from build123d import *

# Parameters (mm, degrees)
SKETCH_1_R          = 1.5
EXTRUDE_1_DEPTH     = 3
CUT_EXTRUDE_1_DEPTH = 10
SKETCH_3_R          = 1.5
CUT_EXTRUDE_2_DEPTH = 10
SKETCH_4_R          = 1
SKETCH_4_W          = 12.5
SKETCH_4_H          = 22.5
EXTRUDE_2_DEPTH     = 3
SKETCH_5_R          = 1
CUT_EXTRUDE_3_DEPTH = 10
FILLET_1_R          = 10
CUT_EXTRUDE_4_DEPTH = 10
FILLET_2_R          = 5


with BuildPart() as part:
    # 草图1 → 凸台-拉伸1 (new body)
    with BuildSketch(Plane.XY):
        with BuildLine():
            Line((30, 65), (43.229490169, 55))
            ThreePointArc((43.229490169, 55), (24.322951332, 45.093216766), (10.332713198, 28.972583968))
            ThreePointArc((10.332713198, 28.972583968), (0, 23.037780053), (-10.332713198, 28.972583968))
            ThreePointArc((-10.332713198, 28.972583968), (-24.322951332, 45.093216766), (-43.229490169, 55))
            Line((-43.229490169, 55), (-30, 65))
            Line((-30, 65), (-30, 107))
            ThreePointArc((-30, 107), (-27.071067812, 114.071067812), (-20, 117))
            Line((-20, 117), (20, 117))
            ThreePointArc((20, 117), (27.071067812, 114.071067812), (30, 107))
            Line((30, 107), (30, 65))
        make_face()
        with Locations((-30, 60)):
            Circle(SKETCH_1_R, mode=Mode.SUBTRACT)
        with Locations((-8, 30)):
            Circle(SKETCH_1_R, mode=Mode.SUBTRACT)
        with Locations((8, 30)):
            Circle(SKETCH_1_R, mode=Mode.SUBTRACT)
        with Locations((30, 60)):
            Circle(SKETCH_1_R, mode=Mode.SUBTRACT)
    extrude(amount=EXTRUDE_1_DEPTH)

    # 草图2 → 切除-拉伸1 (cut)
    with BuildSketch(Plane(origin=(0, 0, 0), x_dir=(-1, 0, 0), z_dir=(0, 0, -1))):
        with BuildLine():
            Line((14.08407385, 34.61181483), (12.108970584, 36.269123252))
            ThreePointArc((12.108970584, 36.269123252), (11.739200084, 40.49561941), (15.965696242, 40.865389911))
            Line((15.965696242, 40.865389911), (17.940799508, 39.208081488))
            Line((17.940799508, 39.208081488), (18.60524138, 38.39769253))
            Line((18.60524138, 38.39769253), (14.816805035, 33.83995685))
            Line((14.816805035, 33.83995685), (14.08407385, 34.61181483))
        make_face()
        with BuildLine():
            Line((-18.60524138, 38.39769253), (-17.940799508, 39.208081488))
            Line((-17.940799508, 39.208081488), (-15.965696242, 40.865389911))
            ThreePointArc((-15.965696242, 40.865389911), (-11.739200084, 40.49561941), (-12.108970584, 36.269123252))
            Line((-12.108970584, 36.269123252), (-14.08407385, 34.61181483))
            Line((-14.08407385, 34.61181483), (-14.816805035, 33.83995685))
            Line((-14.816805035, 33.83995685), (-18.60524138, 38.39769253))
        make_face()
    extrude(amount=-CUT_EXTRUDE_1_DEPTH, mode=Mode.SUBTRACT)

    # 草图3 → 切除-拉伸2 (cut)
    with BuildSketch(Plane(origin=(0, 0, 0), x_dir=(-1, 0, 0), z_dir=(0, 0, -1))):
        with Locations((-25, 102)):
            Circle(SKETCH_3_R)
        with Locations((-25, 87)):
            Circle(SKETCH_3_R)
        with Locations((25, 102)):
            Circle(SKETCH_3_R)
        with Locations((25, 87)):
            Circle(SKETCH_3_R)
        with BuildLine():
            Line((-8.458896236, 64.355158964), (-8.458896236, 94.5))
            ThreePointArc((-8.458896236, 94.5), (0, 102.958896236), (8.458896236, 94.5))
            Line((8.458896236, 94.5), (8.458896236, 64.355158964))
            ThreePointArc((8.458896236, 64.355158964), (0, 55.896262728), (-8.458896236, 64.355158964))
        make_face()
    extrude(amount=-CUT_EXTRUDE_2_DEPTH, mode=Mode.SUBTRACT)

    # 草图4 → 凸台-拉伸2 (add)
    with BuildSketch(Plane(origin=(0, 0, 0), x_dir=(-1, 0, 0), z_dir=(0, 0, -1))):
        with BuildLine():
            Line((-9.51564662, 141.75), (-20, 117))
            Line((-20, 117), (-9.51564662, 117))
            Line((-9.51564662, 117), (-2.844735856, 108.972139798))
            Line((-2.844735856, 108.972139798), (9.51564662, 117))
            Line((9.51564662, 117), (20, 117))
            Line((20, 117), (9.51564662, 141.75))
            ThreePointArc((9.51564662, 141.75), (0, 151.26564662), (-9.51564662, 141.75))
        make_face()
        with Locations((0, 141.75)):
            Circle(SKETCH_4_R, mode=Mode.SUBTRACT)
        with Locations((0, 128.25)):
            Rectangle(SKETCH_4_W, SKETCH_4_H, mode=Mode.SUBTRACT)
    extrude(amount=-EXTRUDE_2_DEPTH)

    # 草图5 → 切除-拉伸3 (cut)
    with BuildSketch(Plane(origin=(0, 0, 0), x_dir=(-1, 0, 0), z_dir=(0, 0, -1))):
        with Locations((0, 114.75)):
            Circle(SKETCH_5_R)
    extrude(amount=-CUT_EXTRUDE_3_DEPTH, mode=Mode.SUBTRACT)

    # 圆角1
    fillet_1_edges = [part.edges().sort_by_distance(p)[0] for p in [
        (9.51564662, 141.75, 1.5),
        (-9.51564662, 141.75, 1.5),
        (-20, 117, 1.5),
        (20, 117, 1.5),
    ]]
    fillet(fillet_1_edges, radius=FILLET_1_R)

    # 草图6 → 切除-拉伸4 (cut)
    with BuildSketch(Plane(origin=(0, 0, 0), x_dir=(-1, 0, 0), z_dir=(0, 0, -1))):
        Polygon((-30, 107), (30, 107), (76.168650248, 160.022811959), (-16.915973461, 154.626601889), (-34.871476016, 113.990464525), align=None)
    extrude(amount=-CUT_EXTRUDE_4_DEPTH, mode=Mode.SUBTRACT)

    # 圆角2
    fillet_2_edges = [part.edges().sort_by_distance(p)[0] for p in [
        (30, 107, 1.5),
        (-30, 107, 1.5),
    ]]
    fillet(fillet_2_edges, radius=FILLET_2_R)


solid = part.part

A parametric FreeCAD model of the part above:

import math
import FreeCAD as App
import Part
import Sketcher

V = App.Vector
Q = App.Units.Quantity


def edges_at(feature, points):
    """Names of the edges that pass closest to the given points."""
    edges = feature.Shape.Edges
    near = lambda p: min(range(len(edges)), key=lambda i: edges[i].distToShape(Part.Vertex(*p))[0])
    return sorted({f"Edge{near(p) + 1}" for p in points})

doc = App.newDocument("Part")
params = doc.addObject("Spreadsheet::Sheet", "Params")
for row, (alias, value) in enumerate([
    ("sketch1_diameter", "3 mm"),
    ("sketch1_radius", "10 mm"),
    ("sketch1_radius2", "57.5 mm"),
    ("sketch1_width", "40 mm"),
    ("sketch1_height", "42 mm"),
    ("pad1_length", "3 mm"),
    ("sketch2_radius", "3 mm"),
    ("pocket1_length", "10 mm"),
    ("sketch3_diameter", "3 mm"),
    ("pocket2_length", "10 mm"),
    ("sketch4_diameter", "2 mm"),
    ("sketch4_width", "12.5 mm"),
    ("sketch4_height", "22.5 mm"),
    ("pad2_length", "3 mm"),
    ("sketch5_diameter", "2 mm"),
    ("pocket3_length", "10 mm"),
    ("fillet_radius", "10 mm"),
    ("sketch6_width", "60 mm"),
    ("pocket4_length", "10 mm"),
    ("fillet2_radius", "5 mm"),
], start=1):
    params.set(f"A{row}", alias)
    params.set(f"B{row}", "=" + value)
    params.setAlias(f"B{row}", alias)

body = doc.addObject("PartDesign::Body", "Body")

# Sketch on XY plane
sketch1 = body.newObject("Sketcher::SketchObject", "Sketch")
sketch1.AttachmentSupport = (doc.getObject("XY_Plane"), [""])
sketch1.MapMode = "FlatFace"
sketch1.addGeometry(Part.LineSegment(V(43.2, 55, 0), V(30, 65, 0)), False)
sketch1.addGeometry(Part.LineSegment(V(30, 65, 0), V(30, 107, 0)), False)
sketch1.addGeometry(Part.ArcOfCircle(Part.Circle(V(20, 107, 0), V(0, 0, 1), 10), math.radians(0), math.radians(90)), False)
sketch1.addGeometry(Part.LineSegment(V(20, 117, 0), V(-20, 117, 0)), False)
sketch1.addGeometry(Part.ArcOfCircle(Part.Circle(V(-20, 107, 0), V(0, 0, 1), 10), math.radians(90), math.radians(180)), False)
sketch1.addGeometry(Part.LineSegment(V(-30, 107, 0), V(-30, 65, 0)), False)
sketch1.addGeometry(Part.LineSegment(V(-30, 65, 0), V(-43.2, 55, 0)), False)
sketch1.addGeometry(Part.ArcOfCircle(Part.Circle(V(-60, 0, 0), V(0, 0, 1), 57.5), math.radians(30), math.radians(73)), False)
sketch1.addGeometry(Part.ArcOfCircle(Part.Circle(V(0, 35, 0), V(0, 0, 1), 12), math.radians(-150), math.radians(-30)), False)
sketch1.addGeometry(Part.ArcOfCircle(Part.Circle(V(60, 0, 0), V(0, 0, 1), 57.5), math.radians(107), math.radians(150)), False)
sketch1.addGeometry(Part.Circle(V(8, 30, 0), V(0, 0, 1), 1.5), False)
sketch1.addGeometry(Part.Circle(V(-8, 30, 0), V(0, 0, 1), 1.5), False)
sketch1.addGeometry(Part.Circle(V(30, 60, 0), V(0, 0, 1), 1.5), False)
sketch1.addGeometry(Part.Circle(V(-30, 60, 0), V(0, 0, 1), 1.5), False)
sketch1.addConstraint(Sketcher.Constraint("Coincident", 0, 2, 1, 1))
sketch1.addConstraint(Sketcher.Constraint("Tangent", 1, 2, 2, 1))
sketch1.addConstraint(Sketcher.Constraint("Tangent", 2, 2, 3, 1))
sketch1.addConstraint(Sketcher.Constraint("Tangent", 3, 2, 4, 1))
sketch1.addConstraint(Sketcher.Constraint("Tangent", 4, 2, 5, 1))
sketch1.addConstraint(Sketcher.Constraint("Coincident", 5, 2, 6, 1))
sketch1.addConstraint(Sketcher.Constraint("Coincident", 6, 2, 7, 2))
sketch1.addConstraint(Sketcher.Constraint("Tangent", 7, 1, 8, 1))
sketch1.addConstraint(Sketcher.Constraint("Tangent", 8, 2, 9, 2))
sketch1.addConstraint(Sketcher.Constraint("Coincident", 9, 1, 0, 1))
sketch1.addConstraint(Sketcher.Constraint("Vertical", 1))
sketch1.addConstraint(Sketcher.Constraint("Horizontal", 3))
sketch1.addConstraint(Sketcher.Constraint("Vertical", 5))
sketch1.addConstraint(Sketcher.Constraint("Equal", 2, 4))
sketch1.addConstraint(Sketcher.Constraint("Equal", 7, 9))
sketch1.addConstraint(Sketcher.Constraint("Equal", 10, 11))
sketch1.addConstraint(Sketcher.Constraint("Equal", 11, 12))
sketch1.addConstraint(Sketcher.Constraint("Equal", 12, 13))
sketch1.addConstraint(Sketcher.Constraint("Symmetric", 7, 3, 9, 3, -1, 1))
sketch1.addConstraint(Sketcher.Constraint("Symmetric", 10, 3, 11, 3, -2))
sketch1.addConstraint(Sketcher.Constraint("Symmetric", 12, 3, 13, 3, -2))
sketch1.addConstraint(Sketcher.Constraint("Symmetric", 0, 2, 5, 2, -2))
sketch1.addConstraint(Sketcher.Constraint("Symmetric", 6, 2, 9, 1, -2))
sketch1.addConstraint(Sketcher.Constraint("Vertical", 12, 3, 0, 2))
sketch1.addConstraint(Sketcher.Constraint("Diameter", 10, Q("3 mm")))
sketch1.addConstraint(Sketcher.Constraint("Radius", 2, Q("10 mm")))
sketch1.addConstraint(Sketcher.Constraint("Radius", 7, Q("57.5 mm")))
sketch1.addConstraint(Sketcher.Constraint("DistanceX", 3, 2, 3, 1, Q("40 mm")))
sketch1.addConstraint(Sketcher.Constraint("DistanceY", 1, 1, 1, 2, Q("42 mm")))
sketch1.addConstraint(Sketcher.Constraint("DistanceY", -1, 1, 2, 3, Q("107 mm")))
sketch1.addConstraint(Sketcher.Constraint("DistanceX", 7, 3, -1, 1, Q("60 mm")))
sketch1.addConstraint(Sketcher.Constraint("DistanceY", -1, 1, 8, 3, Q("35 mm")))
sketch1.addConstraint(Sketcher.Constraint("DistanceX", -1, 1, 10, 3, Q("8 mm")))
sketch1.addConstraint(Sketcher.Constraint("DistanceY", -1, 1, 10, 3, Q("30 mm")))
sketch1.addConstraint(Sketcher.Constraint("DistanceY", -1, 1, 12, 3, Q("60 mm")))
sketch1.addConstraint(Sketcher.Constraint("DistanceY", -1, 1, 6, 2, Q("55 mm")))
sketch1.setExpression("Constraints[24]", "Params.sketch1_diameter")
sketch1.setExpression("Constraints[25]", "Params.sketch1_radius")
sketch1.setExpression("Constraints[26]", "Params.sketch1_radius2")
sketch1.setExpression("Constraints[27]", "Params.sketch1_width")
sketch1.setExpression("Constraints[28]", "Params.sketch1_height")
pad1 = body.newObject("PartDesign::Pad", "Pad")
pad1.Profile = sketch1
pad1.setExpression("Length", "Params.pad1_length")

# Sketch on XY plane
sketch2 = body.newObject("Sketcher::SketchObject", "Sketch001")
sketch2.AttachmentSupport = (doc.getObject("XY_Plane"), [""])
sketch2.MapMode = "FlatFace"
sketch2.addGeometry(Part.LineSegment(V(-12.1, 36.3, 0), V(-14.1, 34.6, 0)), False)
sketch2.addGeometry(Part.LineSegment(V(-14.1, 34.6, 0), V(-14.8, 33.8, 0)), False)
sketch2.addGeometry(Part.LineSegment(V(-14.8, 33.8, 0), V(-18.6, 38.4, 0)), False)
sketch2.addGeometry(Part.LineSegment(V(-18.6, 38.4, 0), V(-17.9, 39.2, 0)), False)
sketch2.addGeometry(Part.LineSegment(V(-17.9, 39.2, 0), V(-16, 40.9, 0)), False)
sketch2.addGeometry(Part.ArcOfCircle(Part.Circle(V(-14, 38.6, 0), V(0, 0, 1), 3), math.radians(-50), math.radians(130)), False)
sketch2.addGeometry(Part.LineSegment(V(17.9, 39.2, 0), V(18.6, 38.4, 0)), False)
sketch2.addGeometry(Part.LineSegment(V(18.6, 38.4, 0), V(14.8, 33.8, 0)), False)
sketch2.addGeometry(Part.LineSegment(V(14.8, 33.8, 0), V(14.1, 34.6, 0)), False)
sketch2.addGeometry(Part.LineSegment(V(14.1, 34.6, 0), V(12.1, 36.3, 0)), False)
sketch2.addGeometry(Part.ArcOfCircle(Part.Circle(V(14, 38.6, 0), V(0, 0, 1), 3), math.radians(50), math.radians(230)), False)
sketch2.addGeometry(Part.LineSegment(V(16, 40.9, 0), V(17.9, 39.2, 0)), False)
sketch2.addConstraint(Sketcher.Constraint("Coincident", 0, 2, 1, 1))
sketch2.addConstraint(Sketcher.Constraint("Coincident", 1, 2, 2, 1))
sketch2.addConstraint(Sketcher.Constraint("Coincident", 2, 2, 3, 1))
sketch2.addConstraint(Sketcher.Constraint("Coincident", 3, 2, 4, 1))
sketch2.addConstraint(Sketcher.Constraint("Tangent", 4, 2, 5, 2))
sketch2.addConstraint(Sketcher.Constraint("Tangent", 5, 1, 0, 1))
sketch2.addConstraint(Sketcher.Constraint("Coincident", 6, 2, 7, 1))
sketch2.addConstraint(Sketcher.Constraint("Coincident", 7, 2, 8, 1))
sketch2.addConstraint(Sketcher.Constraint("Coincident", 8, 2, 9, 1))
sketch2.addConstraint(Sketcher.Constraint("Tangent", 9, 2, 10, 2))
sketch2.addConstraint(Sketcher.Constraint("Tangent", 10, 1, 11, 1))
sketch2.addConstraint(Sketcher.Constraint("Coincident", 11, 2, 6, 1))
sketch2.addConstraint(Sketcher.Constraint("Equal", 5, 10))
sketch2.addConstraint(Sketcher.Constraint("Symmetric", 5, 3, 10, 3, -2))
sketch2.addConstraint(Sketcher.Constraint("Symmetric", 2, 2, 6, 2, -2))
sketch2.addConstraint(Sketcher.Constraint("Symmetric", 1, 2, 7, 2, -2))
sketch2.addConstraint(Sketcher.Constraint("Symmetric", 0, 2, 8, 2, -2))
sketch2.addConstraint(Sketcher.Constraint("Symmetric", 3, 2, 11, 2, -2))
sketch2.addConstraint(Sketcher.Constraint("Parallel", 0, 4))
sketch2.addConstraint(Sketcher.Constraint("Equal", 0, 4))
sketch2.addConstraint(Sketcher.Constraint("Radius", 5, Q("3 mm")))
sketch2.addConstraint(Sketcher.Constraint("Angle", 0, Q("-140 deg")))
sketch2.addConstraint(Sketcher.Constraint("DistanceX", 3, 2, -1, 1, Q("17.9408 mm")))
sketch2.addConstraint(Sketcher.Constraint("DistanceY", 1, 2, 5, 3, Q("4.7273 mm")))
sketch2.addConstraint(Sketcher.Constraint("DistanceX", 2, 2, -1, 1, Q("18.605241 mm")))
sketch2.addConstraint(Sketcher.Constraint("DistanceY", -1, 1, 3, 2, Q("39.208081 mm")))
sketch2.addConstraint(Sketcher.Constraint("DistanceY", -1, 1, 4, 2, Q("40.86539 mm")))
sketch2.addConstraint(Sketcher.Constraint("DistanceX", 1, 2, 0, 2, Q("0.732731 mm")))
sketch2.addConstraint(Sketcher.Constraint("DistanceY", 2, 2, 3, 2, Q("0.810389 mm")))
sketch2.setExpression("Constraints[20]", "Params.sketch2_radius")
pocket1 = body.newObject("PartDesign::Pocket", "Pocket")
pocket1.Profile = sketch2
pocket1.setExpression("Length", "Params.pocket1_length")
pocket1.Reversed = True

# Sketch on XY plane
sketch3 = body.newObject("Sketcher::SketchObject", "Sketch002")
sketch3.AttachmentSupport = (doc.getObject("XY_Plane"), [""])
sketch3.MapMode = "FlatFace"
sketch3.addGeometry(Part.Circle(V(25, 102, 0), V(0, 0, 1), 1.5), False)
sketch3.addGeometry(Part.Circle(V(25, 87, 0), V(0, 0, 1), 1.5), False)
sketch3.addGeometry(Part.Circle(V(-25, 102, 0), V(0, 0, 1), 1.5), False)
sketch3.addGeometry(Part.Circle(V(-25, 87, 0), V(0, 0, 1), 1.5), False)
sketch3.addGeometry(Part.LineSegment(V(8.5, 94.5, 0), V(8.5, 64.4, 0)), False)
sketch3.addGeometry(Part.ArcOfCircle(Part.Circle(V(0, 64.4, 0), V(0, 0, 1), 8.5), math.radians(180), math.radians(360)), False)
sketch3.addGeometry(Part.LineSegment(V(-8.5, 64.4, 0), V(-8.5, 94.5, 0)), False)
sketch3.addGeometry(Part.ArcOfCircle(Part.Circle(V(0, 94.5, 0), V(0, 0, 1), 8.5), math.radians(0), math.radians(180)), False)
sketch3.addConstraint(Sketcher.Constraint("Tangent", 4, 2, 5, 2))
sketch3.addConstraint(Sketcher.Constraint("Tangent", 5, 1, 6, 1))
sketch3.addConstraint(Sketcher.Constraint("Tangent", 6, 2, 7, 2))
sketch3.addConstraint(Sketcher.Constraint("Tangent", 7, 1, 4, 1))
sketch3.addConstraint(Sketcher.Constraint("Vertical", 4))
sketch3.addConstraint(Sketcher.Constraint("Vertical", 6))
sketch3.addConstraint(Sketcher.Constraint("Equal", 0, 1))
sketch3.addConstraint(Sketcher.Constraint("Equal", 1, 2))
sketch3.addConstraint(Sketcher.Constraint("Equal", 2, 3))
sketch3.addConstraint(Sketcher.Constraint("Symmetric", 0, 3, 2, 3, -2))
sketch3.addConstraint(Sketcher.Constraint("Symmetric", 1, 3, 3, 3, -2))
sketch3.addConstraint(Sketcher.Constraint("PointOnObject", 5, 3, -2))
sketch3.addConstraint(Sketcher.Constraint("Vertical", 0, 3, 1, 3))
sketch3.addConstraint(Sketcher.Constraint("Diameter", 0, Q("3 mm")))
sketch3.addConstraint(Sketcher.Constraint("DistanceX", -1, 1, 0, 3, Q("25 mm")))
sketch3.addConstraint(Sketcher.Constraint("DistanceY", -1, 1, 0, 3, Q("102 mm")))
sketch3.addConstraint(Sketcher.Constraint("DistanceY", -1, 1, 1, 3, Q("87 mm")))
sketch3.addConstraint(Sketcher.Constraint("DistanceY", -1, 1, 7, 3, Q("94.5 mm")))
sketch3.addConstraint(Sketcher.Constraint("Radius", 5, Q("8.458896 mm")))
sketch3.addConstraint(Sketcher.Constraint("DistanceY", 4, 2, 4, 1, Q("30.144841 mm")))
sketch3.setExpression("Constraints[13]", "Params.sketch3_diameter")
pocket2 = body.newObject("PartDesign::Pocket", "Pocket001")
pocket2.Profile = sketch3
pocket2.setExpression("Length", "Params.pocket2_length")
pocket2.Reversed = True

# Sketch on XY plane
sketch4 = body.newObject("Sketcher::SketchObject", "Sketch003")
sketch4.AttachmentSupport = (doc.getObject("XY_Plane"), [""])
sketch4.MapMode = "FlatFace"
sketch4.addGeometry(Part.LineSegment(V(9.5, 141.8, 0), V(20, 117, 0)), False)
sketch4.addGeometry(Part.LineSegment(V(20, 117, 0), V(9.5, 117, 0)), False)
sketch4.addGeometry(Part.LineSegment(V(9.5, 117, 0), V(2.8, 109, 0)), False)
sketch4.addGeometry(Part.LineSegment(V(2.8, 109, 0), V(-9.5, 117, 0)), False)
sketch4.addGeometry(Part.LineSegment(V(-9.5, 117, 0), V(-20, 117, 0)), False)
sketch4.addGeometry(Part.LineSegment(V(-20, 117, 0), V(-9.5, 141.8, 0)), False)
sketch4.addGeometry(Part.ArcOfCircle(Part.Circle(V(0, 141.8, 0), V(0, 0, 1), 9.5), math.radians(0), math.radians(180)), False)
sketch4.addGeometry(Part.LineSegment(V(-6.2, 117, 0), V(6.2, 117, 0)), False)
sketch4.addGeometry(Part.LineSegment(V(6.2, 117, 0), V(6.2, 139.5, 0)), False)
sketch4.addGeometry(Part.LineSegment(V(6.2, 139.5, 0), V(-6.2, 139.5, 0)), False)
sketch4.addGeometry(Part.LineSegment(V(-6.2, 139.5, 0), V(-6.2, 117, 0)), False)
sketch4.addGeometry(Part.Circle(V(0, 141.8, 0), V(0, 0, 1), 1), False)
sketch4.addConstraint(Sketcher.Constraint("Coincident", 0, 2, 1, 1))
sketch4.addConstraint(Sketcher.Constraint("Coincident", 1, 2, 2, 1))
sketch4.addConstraint(Sketcher.Constraint("Coincident", 2, 2, 3, 1))
sketch4.addConstraint(Sketcher.Constraint("Coincident", 3, 2, 4, 1))
sketch4.addConstraint(Sketcher.Constraint("Coincident", 4, 2, 5, 1))
sketch4.addConstraint(Sketcher.Constraint("Coincident", 5, 2, 6, 2))
sketch4.addConstraint(Sketcher.Constraint("Coincident", 6, 1, 0, 1))
sketch4.addConstraint(Sketcher.Constraint("Coincident", 7, 2, 8, 1))
sketch4.addConstraint(Sketcher.Constraint("Coincident", 8, 2, 9, 1))
sketch4.addConstraint(Sketcher.Constraint("Coincident", 9, 2, 10, 1))
sketch4.addConstraint(Sketcher.Constraint("Coincident", 10, 2, 7, 1))
sketch4.addConstraint(Sketcher.Constraint("Horizontal", 1))
sketch4.addConstraint(Sketcher.Constraint("Horizontal", 4))
sketch4.addConstraint(Sketcher.Constraint("Horizontal", 7))
sketch4.addConstraint(Sketcher.Constraint("Vertical", 8))
sketch4.addConstraint(Sketcher.Constraint("Horizontal", 9))
sketch4.addConstraint(Sketcher.Constraint("Vertical", 10))
sketch4.addConstraint(Sketcher.Constraint("Coincident", 11, 3, 6, 3))
sketch4.addConstraint(Sketcher.Constraint("Symmetric", 1, 2, 3, 2, -2))
sketch4.addConstraint(Sketcher.Constraint("Symmetric", 5, 2, 6, 1, -2))
sketch4.addConstraint(Sketcher.Constraint("Horizontal", 11, 3, 5, 2))
sketch4.addConstraint(Sketcher.Constraint("Horizontal", 4, 2, 7, 2))
sketch4.addConstraint(Sketcher.Constraint("Vertical", 3, 2, 5, 2))
sketch4.addConstraint(Sketcher.Constraint("Equal", 1, 4))
sketch4.addConstraint(Sketcher.Constraint("Diameter", 11, Q("2 mm")))
sketch4.addConstraint(Sketcher.Constraint("DistanceX", 7, 1, 7, 2, Q("12.5 mm")))
sketch4.addConstraint(Sketcher.Constraint("DistanceY", 8, 1, 8, 2, Q("22.5 mm")))
sketch4.addConstraint(Sketcher.Constraint("DistanceX", -1, 1, 0, 2, Q("20 mm")))
sketch4.addConstraint(Sketcher.Constraint("DistanceY", -1, 1, 0, 2, Q("117 mm")))
sketch4.addConstraint(Sketcher.Constraint("DistanceY", -1, 1, 6, 3, Q("141.75 mm")))
sketch4.addConstraint(Sketcher.Constraint("DistanceX", -1, 1, 7, 2, Q("6.25 mm")))
sketch4.addConstraint(Sketcher.Constraint("Radius", 6, Q("9.515647 mm")))
sketch4.addConstraint(Sketcher.Constraint("DistanceY", -1, 1, 2, 2, Q("108.97214 mm")))
sketch4.addConstraint(Sketcher.Constraint("DistanceX", 2, 2, 1, 2, Q("6.670911 mm")))
sketch4.setExpression("Constraints[24]", "Params.sketch4_diameter")
sketch4.setExpression("Constraints[25]", "Params.sketch4_width")
sketch4.setExpression("Constraints[26]", "Params.sketch4_height")
pad2 = body.newObject("PartDesign::Pad", "Pad001")
pad2.Profile = sketch4
pad2.setExpression("Length", "Params.pad2_length")

# Sketch on XY plane
sketch5 = body.newObject("Sketcher::SketchObject", "Sketch004")
sketch5.AttachmentSupport = (doc.getObject("XY_Plane"), [""])
sketch5.MapMode = "FlatFace"
sketch5.addGeometry(Part.Circle(V(0, 114.8, 0), V(0, 0, 1), 1), False)
sketch5.addConstraint(Sketcher.Constraint("PointOnObject", 0, 3, -2))
sketch5.addConstraint(Sketcher.Constraint("Diameter", 0, Q("2 mm")))
sketch5.addConstraint(Sketcher.Constraint("DistanceY", -1, 1, 0, 3, Q("114.75 mm")))
sketch5.setExpression("Constraints[1]", "Params.sketch5_diameter")
pocket3 = body.newObject("PartDesign::Pocket", "Pocket002")
pocket3.Profile = sketch5
pocket3.setExpression("Length", "Params.pocket3_length")
pocket3.Reversed = True
doc.recompute()

fillet = body.newObject("PartDesign::Fillet", "Fillet")
fillet.Base = (pocket3, edges_at(pocket3, [
    (9.516, 141.75, 1.5),
    (-9.516, 141.75, 1.5),
    (-20, 117, 1.5),
    (20, 117, 1.5),
]))
fillet.setExpression("Radius", "Params.fillet_radius")

# Sketch on XY plane
sketch6 = body.newObject("Sketcher::SketchObject", "Sketch005")
sketch6.AttachmentSupport = (doc.getObject("XY_Plane"), [""])
sketch6.MapMode = "FlatFace"
sketch6.addGeometry(Part.LineSegment(V(30, 107, 0), V(-30, 107, 0)), False)
sketch6.addGeometry(Part.LineSegment(V(-30, 107, 0), V(-76, 160, 0)), False)
sketch6.addGeometry(Part.LineSegment(V(-76, 160, 0), V(17, 155, 0)), False)
sketch6.addGeometry(Part.LineSegment(V(17, 155, 0), V(35, 114, 0)), False)
sketch6.addGeometry(Part.LineSegment(V(35, 114, 0), V(30, 107, 0)), False)
sketch6.addConstraint(Sketcher.Constraint("Coincident", 0, 2, 1, 1))
sketch6.addConstraint(Sketcher.Constraint("Coincident", 1, 2, 2, 1))
sketch6.addConstraint(Sketcher.Constraint("Coincident", 2, 2, 3, 1))
sketch6.addConstraint(Sketcher.Constraint("Coincident", 3, 2, 4, 1))
sketch6.addConstraint(Sketcher.Constraint("Coincident", 4, 2, 0, 1))
sketch6.addConstraint(Sketcher.Constraint("Horizontal", 0))
sketch6.addConstraint(Sketcher.Constraint("DistanceX", 0, 2, 0, 1, Q("60 mm")))
sketch6.addConstraint(Sketcher.Constraint("DistanceX", 0, 2, -1, 1, Q("30 mm")))
sketch6.addConstraint(Sketcher.Constraint("DistanceY", -1, 1, 0, 2, Q("107 mm")))
sketch6.addConstraint(Sketcher.Constraint("DistanceY", -1, 1, 2, 2, Q("154.626602 mm")))
sketch6.addConstraint(Sketcher.Constraint("Distance", 4, Q("8.520439 mm")))
sketch6.addConstraint(Sketcher.Constraint("DistanceX", 1, 2, -1, 1, Q("76.16865 mm")))
sketch6.addConstraint(Sketcher.Constraint("DistanceY", -1, 1, 1, 2, Q("160.022812 mm")))
sketch6.addConstraint(Sketcher.Constraint("Distance", 2, Q("93.240904 mm")))
sketch6.addConstraint(Sketcher.Constraint("Distance", 3, Q("44.426296 mm")))
sketch6.setExpression("Constraints[6]", "Params.sketch6_width")
pocket4 = body.newObject("PartDesign::Pocket", "Pocket003")
pocket4.Profile = sketch6
pocket4.setExpression("Length", "Params.pocket4_length")
pocket4.Reversed = True
doc.recompute()

fillet2 = body.newObject("PartDesign::Fillet", "Fillet001")
fillet2.Base = (pocket4, edges_at(pocket4, [(30, 107, 1.5), (-30, 107, 1.5)]))
fillet2.setExpression("Radius", "Params.fillet2_radius")

doc.recompute()
